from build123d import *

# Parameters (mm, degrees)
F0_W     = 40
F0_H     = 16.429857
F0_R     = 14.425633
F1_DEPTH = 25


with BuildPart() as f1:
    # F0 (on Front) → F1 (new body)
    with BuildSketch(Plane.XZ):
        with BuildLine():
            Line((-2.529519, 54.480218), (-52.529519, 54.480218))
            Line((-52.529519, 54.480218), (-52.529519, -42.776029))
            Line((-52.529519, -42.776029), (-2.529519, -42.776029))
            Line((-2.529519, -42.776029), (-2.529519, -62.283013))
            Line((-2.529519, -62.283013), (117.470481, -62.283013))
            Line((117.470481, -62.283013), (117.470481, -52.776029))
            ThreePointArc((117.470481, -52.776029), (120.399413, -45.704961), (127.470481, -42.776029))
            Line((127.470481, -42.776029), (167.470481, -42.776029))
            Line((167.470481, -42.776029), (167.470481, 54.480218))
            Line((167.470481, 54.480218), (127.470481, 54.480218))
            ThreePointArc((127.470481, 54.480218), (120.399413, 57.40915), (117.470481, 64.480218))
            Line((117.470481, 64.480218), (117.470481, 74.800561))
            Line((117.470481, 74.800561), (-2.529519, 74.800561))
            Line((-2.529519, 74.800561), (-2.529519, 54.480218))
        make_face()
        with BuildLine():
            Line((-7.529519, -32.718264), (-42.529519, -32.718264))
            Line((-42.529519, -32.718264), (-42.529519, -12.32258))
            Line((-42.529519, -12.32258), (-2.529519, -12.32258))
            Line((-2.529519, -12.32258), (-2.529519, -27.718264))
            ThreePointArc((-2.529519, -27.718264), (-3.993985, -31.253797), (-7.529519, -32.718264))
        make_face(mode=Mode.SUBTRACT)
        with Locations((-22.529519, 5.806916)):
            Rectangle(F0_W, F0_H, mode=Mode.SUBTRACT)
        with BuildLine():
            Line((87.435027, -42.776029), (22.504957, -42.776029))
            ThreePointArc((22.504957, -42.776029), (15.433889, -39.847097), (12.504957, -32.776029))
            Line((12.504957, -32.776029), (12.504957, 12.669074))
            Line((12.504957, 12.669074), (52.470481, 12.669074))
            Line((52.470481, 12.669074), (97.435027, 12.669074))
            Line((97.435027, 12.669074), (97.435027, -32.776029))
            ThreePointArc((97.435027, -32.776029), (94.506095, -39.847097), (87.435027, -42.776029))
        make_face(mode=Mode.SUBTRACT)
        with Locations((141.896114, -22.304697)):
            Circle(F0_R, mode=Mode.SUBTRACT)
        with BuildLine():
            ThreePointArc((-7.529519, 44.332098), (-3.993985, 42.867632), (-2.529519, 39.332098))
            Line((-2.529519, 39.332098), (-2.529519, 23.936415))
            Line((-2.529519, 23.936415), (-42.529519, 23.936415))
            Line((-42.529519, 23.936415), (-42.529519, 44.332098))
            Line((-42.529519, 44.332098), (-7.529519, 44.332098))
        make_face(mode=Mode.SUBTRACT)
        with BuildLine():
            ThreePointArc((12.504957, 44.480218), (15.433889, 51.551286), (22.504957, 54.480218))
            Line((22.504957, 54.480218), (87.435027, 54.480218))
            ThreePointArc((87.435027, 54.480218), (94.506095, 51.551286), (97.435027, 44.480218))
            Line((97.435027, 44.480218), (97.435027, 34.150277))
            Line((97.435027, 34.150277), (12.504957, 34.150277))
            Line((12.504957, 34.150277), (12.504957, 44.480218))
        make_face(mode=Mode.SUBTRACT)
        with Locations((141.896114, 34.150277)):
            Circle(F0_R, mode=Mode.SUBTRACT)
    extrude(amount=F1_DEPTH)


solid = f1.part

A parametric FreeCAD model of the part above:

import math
import FreeCAD as App
import Part
import Sketcher

V = App.Vector


def add_polygon(sketch, points):
    """Adds a closed chain of lines whose ends are joined by coincident constraints."""
    first, n = sketch.GeometryCount, len(points)
    for a, b in zip(points, points[1:] + points[:1]):
        sketch.addGeometry(Part.LineSegment(App.Vector(*a, 0), App.Vector(*b, 0)), False)
    for i in range(n):
        sketch.addConstraint(Sketcher.Constraint("Coincident", first + i, 2, first + (i + 1) % n, 1))

doc = App.newDocument("Part")
body = doc.addObject("PartDesign::Body", "Body")

# Sketch on XZ plane
sketch1 = body.newObject("Sketcher::SketchObject", "Sketch")
sketch1.AttachmentSupport = (doc.getObject("XZ_Plane"), [""])
sketch1.MapMode = "FlatFace"
sketch1.addGeometry(Part.LineSegment(V(-2.529519, 54.480218, 0), V(-52.529519, 54.480218, 0)), False)  # 0
sketch1.addGeometry(Part.LineSegment(V(-52.529519, 54.480218, 0), V(-52.529519, -42.776029, 0)), False)  # 1
sketch1.addGeometry(Part.LineSegment(V(-52.529519, -42.776029, 0), V(-2.529519, -42.776029, 0)), False)  # 2
sketch1.addGeometry(Part.LineSegment(V(-2.529519, -42.776029, 0), V(-2.529519, -62.283013, 0)), False)  # 3
sketch1.addGeometry(Part.LineSegment(V(-2.529519, -62.283013, 0), V(117.470481, -62.283013, 0)), False)  # 4
sketch1.addGeometry(Part.LineSegment(V(117.470481, -62.283013, 0), V(117.470481, -52.776029, 0)), False)  # 5
sketch1.addGeometry(Part.ArcOfCircle(Part.Circle(V(127.47048, -52.776028, 0), V(0, 0, 1), 9.999999), math.radians(89.999996), math.radians(180.000004)), False)  # 6
sketch1.addGeometry(Part.LineSegment(V(127.470481, -42.776029, 0), V(167.470481, -42.776029, 0)), False)  # 7
sketch1.addGeometry(Part.LineSegment(V(167.470481, -42.776029, 0), V(167.470481, 54.480218, 0)), False)  # 8
sketch1.addGeometry(Part.LineSegment(V(167.470481, 54.480218, 0), V(127.470481, 54.480218, 0)), False)  # 9
sketch1.addGeometry(Part.ArcOfCircle(Part.Circle(V(127.47048, 64.480217, 0), V(0, 0, 1), 9.999999), math.radians(179.999996), math.radians(270.000004)), False)  # 10
sketch1.addGeometry(Part.LineSegment(V(117.470481, 64.480218, 0), V(117.470481, 74.800561, 0)), False)  # 11
sketch1.addGeometry(Part.LineSegment(V(117.470481, 74.800561, 0), V(-2.529519, 74.800561, 0)), False)  # 12
sketch1.addGeometry(Part.LineSegment(V(-2.529519, 74.800561, 0), V(-2.529519, 54.480218, 0)), False)  # 13
sketch1.addGeometry(Part.ArcOfCircle(Part.Circle(V(-7.52952, -27.718263, 0), V(0, 0, 1), 5.000001), math.radians(-89.999984), math.radians(-0.000016)), False)  # 14
sketch1.addGeometry(Part.LineSegment(V(-7.529519, -32.718264, 0), V(-42.529519, -32.718264, 0)), False)  # 15
sketch1.addGeometry(Part.LineSegment(V(-42.529519, -32.718264, 0), V(-42.529519, -12.32258, 0)), False)  # 16
sketch1.addGeometry(Part.LineSegment(V(-42.529519, -12.32258, 0), V(-2.529519, -12.32258, 0)), False)  # 17
sketch1.addGeometry(Part.LineSegment(V(-2.529519, -12.32258, 0), V(-2.529519, -27.718264, 0)), False)  # 18
add_polygon(sketch1, [(-2.529519, -2.408012), (-42.529519, -2.408012), (-42.529519, 14.021845), (-2.529519, 14.021845)])  # lines 19-22
sketch1.addGeometry(Part.ArcOfCircle(Part.Circle(V(87.435028, -32.77603, 0), V(0, 0, 1), 9.999999), math.radians(-90.000004), math.radians(0.000004)), False)  # 23
sketch1.addGeometry(Part.LineSegment(V(87.435027, -42.776029, 0), V(22.504957, -42.776029, 0)), False)  # 24
sketch1.addGeometry(Part.ArcOfCircle(Part.Circle(V(22.504956, -32.77603, 0), V(0, 0, 1), 9.999999), math.radians(179.999996), math.radians(270.000004)), False)  # 25
sketch1.addGeometry(Part.LineSegment(V(12.504957, -32.776029, 0), V(12.504957, 12.669074, 0)), False)  # 26
sketch1.addGeometry(Part.LineSegment(V(12.504957, 12.669074, 0), V(97.435027, 12.669074, 0)), False)  # 27
sketch1.addGeometry(Part.LineSegment(V(97.435027, 12.669074, 0), V(97.435027, -32.776029, 0)), False)  # 28
sketch1.addGeometry(Part.Circle(V(141.896114, -22.304697, 0), V(0, 0, 1), 14.425633), False)  # 29
sketch1.addGeometry(Part.LineSegment(V(-42.529519, 44.332098, 0), V(-7.529519, 44.332098, 0)), False)  # 30
sketch1.addGeometry(Part.ArcOfCircle(Part.Circle(V(-7.529519, 39.332098, 0), V(0, 0, 1), 5), math.radians(-0.000004), math.radians(90.000004)), False)  # 31
sketch1.addGeometry(Part.LineSegment(V(-2.529519, 39.332098, 0), V(-2.529519, 23.936415, 0)), False)  # 32
sketch1.addGeometry(Part.LineSegment(V(-2.529519, 23.936415, 0), V(-42.529519, 23.936415, 0)), False)  # 33
sketch1.addGeometry(Part.LineSegment(V(-42.529519, 23.936415, 0), V(-42.529519, 44.332098, 0)), False)  # 34
sketch1.addGeometry(Part.LineSegment(V(12.504957, 34.150277, 0), V(12.504957, 44.480218, 0)), False)  # 35
sketch1.addGeometry(Part.ArcOfCircle(Part.Circle(V(22.504956, 44.480219, 0), V(0, 0, 1), 9.999999), math.radians(89.999996), math.radians(180.000004)), False)  # 36
sketch1.addGeometry(Part.LineSegment(V(22.504957, 54.480218, 0), V(87.435027, 54.480218, 0)), False)  # 37
sketch1.addGeometry(Part.ArcOfCircle(Part.Circle(V(87.435028, 44.480219, 0), V(0, 0, 1), 9.999999), math.radians(-0.000004), math.radians(90.000004)), False)  # 38
sketch1.addGeometry(Part.LineSegment(V(97.435027, 44.480218, 0), V(97.435027, 34.150277, 0)), False)  # 39
sketch1.addGeometry(Part.LineSegment(V(97.435027, 34.150277, 0), V(12.504957, 34.150277, 0)), False)  # 40
sketch1.addGeometry(Part.Circle(V(141.896114, 34.150277, 0), V(0, 0, 1), 14.425633), False)  # 41
sketch1.addConstraint([
    Sketcher.Constraint("Coincident", 0, 2, 1, 1),
    Sketcher.Constraint("Coincident", 1, 2, 2, 1),
    Sketcher.Constraint("Coincident", 2, 2, 3, 1),
    Sketcher.Constraint("Coincident", 3, 2, 4, 1),
    Sketcher.Constraint("Coincident", 4, 2, 5, 1),
    Sketcher.Constraint("Tangent", 5, 2, 6, 2),
    Sketcher.Constraint("Tangent", 6, 1, 7, 1),
    Sketcher.Constraint("Coincident", 7, 2, 8, 1),
    Sketcher.Constraint("Coincident", 8, 2, 9, 1),
    Sketcher.Constraint("Tangent", 9, 2, 10, 2),
    Sketcher.Constraint("Tangent", 10, 1, 11, 1),
    Sketcher.Constraint("Coincident", 11, 2, 12, 1),
    Sketcher.Constraint("Coincident", 12, 2, 13, 1),
    Sketcher.Constraint("Coincident", 13, 2, 0, 1),
    Sketcher.Constraint("Tangent", 14, 1, 15, 1),
    Sketcher.Constraint("Coincident", 15, 2, 16, 1),
    Sketcher.Constraint("Coincident", 16, 2, 17, 1),
    Sketcher.Constraint("Coincident", 17, 2, 18, 1),
    Sketcher.Constraint("Tangent", 18, 2, 14, 2),
    Sketcher.Constraint("Tangent", 23, 1, 24, 1),
    Sketcher.Constraint("Tangent", 24, 2, 25, 2),
    Sketcher.Constraint("Tangent", 25, 1, 26, 1),
    Sketcher.Constraint("Coincident", 26, 2, 27, 1),
    Sketcher.Constraint("Coincident", 27, 2, 28, 1),
    Sketcher.Constraint("Tangent", 28, 2, 23, 2),
    Sketcher.Constraint("Tangent", 30, 2, 31, 2),
    Sketcher.Constraint("Tangent", 31, 1, 32, 1),
    Sketcher.Constraint("Coincident", 32, 2, 33, 1),
    Sketcher.Constraint("Coincident", 33, 2, 34, 1),
    Sketcher.Constraint("Coincident", 34, 2, 30, 1),
    Sketcher.Constraint("Tangent", 35, 2, 36, 2),
    Sketcher.Constraint("Tangent", 36, 1, 37, 1),
    Sketcher.Constraint("Tangent", 37, 2, 38, 2),
    Sketcher.Constraint("Tangent", 38, 1, 39, 1),
    Sketcher.Constraint("Coincident", 39, 2, 40, 1),
    Sketcher.Constraint("Coincident", 40, 2, 35, 1),
    Sketcher.Constraint("Horizontal", 0),
    Sketcher.Constraint("Vertical", 1),
    Sketcher.Constraint("Horizontal", 2),
    Sketcher.Constraint("Vertical", 3),
    Sketcher.Constraint("Horizontal", 4),
    Sketcher.Constraint("Vertical", 5),
    Sketcher.Constraint("Horizontal", 7),
    Sketcher.Constraint("Vertical", 8),
    Sketcher.Constraint("Horizontal", 9),
    Sketcher.Constraint("Vertical", 11),
    Sketcher.Constraint("Horizontal", 12),
    Sketcher.Constraint("Vertical", 13),
    Sketcher.Constraint("Horizontal", 15),
    Sketcher.Constraint("Vertical", 16),
    Sketcher.Constraint("Horizontal", 17),
    Sketcher.Constraint("Vertical", 18),
    Sketcher.Constraint("Horizontal", 19),
    Sketcher.Constraint("Vertical", 20),
    Sketcher.Constraint("Horizontal", 21),
    Sketcher.Constraint("Vertical", 22),
    Sketcher.Constraint("Horizontal", 24),
    Sketcher.Constraint("Vertical", 26),
    Sketcher.Constraint("Horizontal", 27),
    Sketcher.Constraint("Vertical", 28),
    Sketcher.Constraint("Horizontal", 30),
    Sketcher.Constraint("Vertical", 32),
    Sketcher.Constraint("Horizontal", 33),
    Sketcher.Constraint("Vertical", 34),
    Sketcher.Constraint("Vertical", 35),
    Sketcher.Constraint("Horizontal", 37),
    Sketcher.Constraint("Vertical", 39),
    Sketcher.Constraint("Horizontal", 40),
    Sketcher.Constraint("Equal", 6, 10),
    Sketcher.Constraint("Equal", 10, 23),
    Sketcher.Constraint("Equal", 23, 25),
    Sketcher.Constraint("Equal", 14, 31),
    Sketcher.Constraint("Equal", 25, 36),
    Sketcher.Constraint("Equal", 36, 38),
    Sketcher.Constraint("Equal", 29, 41),
    Sketcher.Constraint("Horizontal", 2, 2, 6, 1),
    Sketcher.Constraint("Horizontal", 0, 2, 8, 2),
    Sketcher.Constraint("Horizontal", 7, 2, 23, 1),
    Sketcher.Constraint("Horizontal", 13, 2, 36, 1),
    Sketcher.Constraint("Horizontal", 41, 3, 39, 2),
    Sketcher.Constraint("Vertical", 6, 3, 10, 3),
    Sketcher.Constraint("Vertical", 14, 3, 31, 3),
    Sketcher.Constraint("Vertical", 25, 3, 36, 3),
    Sketcher.Constraint("Vertical", 23, 3, 38, 3),
    Sketcher.Constraint("Vertical", 29, 3, 41, 3),
    Sketcher.Constraint("Vertical", 3, 2, 12, 2),
    Sketcher.Constraint("Vertical", 13, 2, 17, 2),
    Sketcher.Constraint("Vertical", 16, 2, 19, 2),
    Sketcher.Constraint("Vertical", 18, 2, 21, 2),
    Sketcher.Constraint("Vertical", 20, 2, 33, 2),
    Sketcher.Constraint("Equal", 9, 17),
    Sketcher.Constraint("Equal", 18, 32),
    Sketcher.Constraint("Radius", 6, 9.999999),
    Sketcher.Constraint("Radius", 14, 5.000001),
    Sketcher.Constraint("DistanceX", 0, 2, 0, 1, 50.0),
    Sketcher.Constraint("DistanceX", 4, 1, 4, 2, 120.0),
    Sketcher.Constraint("DistanceX", 7, 1, 7, 2, 40.0),
    Sketcher.Constraint("Diameter", 29, 28.851266),
    Sketcher.Constraint("DistanceX", 24, 2, 24, 1, 64.93007),
    Sketcher.Constraint("DistanceY", 35, 1, 35, 2, 10.329941),
    Sketcher.Constraint("DistanceY", -1, 1, 31, 3, 39.332098),
    Sketcher.Constraint("DistanceY", 1, 2, 1, 1, 97.256247),
    Sketcher.Constraint("DistanceY", 3, 2, 3, 1, 19.506984),
    Sketcher.Constraint("DistanceY", 11, 1, 11, 2, 10.320343),
    Sketcher.Constraint("DistanceY", 16, 1, 16, 2, 20.395684),
    Sketcher.Constraint("DistanceY", 20, 1, 20, 2, 16.429857),
    Sketcher.Constraint("DistanceY", 26, 1, 26, 2, 45.445103),
    Sketcher.Constraint("DistanceX", -1, 1, 6, 3, 127.47048),
    Sketcher.Constraint("DistanceY", 6, 3, -1, 1, 52.776028),
    Sketcher.Constraint("DistanceY", 16, 2, -1, 1, 12.32258),
    Sketcher.Constraint("DistanceX", 14, 3, 23, 3, 94.964548),
    Sketcher.Constraint("DistanceY", 6, 3, 29, 3, 30.471331),
    Sketcher.Constraint("DistanceY", 15, 2, 19, 2, 30.310251),
    Sketcher.Constraint("DistanceX", -1, 1, 29, 3, 141.896114),
])
pad1 = body.newObject("PartDesign::Pad", "Pad")
pad1.Profile = sketch1
pad1.Length = 25

doc.recompute()
